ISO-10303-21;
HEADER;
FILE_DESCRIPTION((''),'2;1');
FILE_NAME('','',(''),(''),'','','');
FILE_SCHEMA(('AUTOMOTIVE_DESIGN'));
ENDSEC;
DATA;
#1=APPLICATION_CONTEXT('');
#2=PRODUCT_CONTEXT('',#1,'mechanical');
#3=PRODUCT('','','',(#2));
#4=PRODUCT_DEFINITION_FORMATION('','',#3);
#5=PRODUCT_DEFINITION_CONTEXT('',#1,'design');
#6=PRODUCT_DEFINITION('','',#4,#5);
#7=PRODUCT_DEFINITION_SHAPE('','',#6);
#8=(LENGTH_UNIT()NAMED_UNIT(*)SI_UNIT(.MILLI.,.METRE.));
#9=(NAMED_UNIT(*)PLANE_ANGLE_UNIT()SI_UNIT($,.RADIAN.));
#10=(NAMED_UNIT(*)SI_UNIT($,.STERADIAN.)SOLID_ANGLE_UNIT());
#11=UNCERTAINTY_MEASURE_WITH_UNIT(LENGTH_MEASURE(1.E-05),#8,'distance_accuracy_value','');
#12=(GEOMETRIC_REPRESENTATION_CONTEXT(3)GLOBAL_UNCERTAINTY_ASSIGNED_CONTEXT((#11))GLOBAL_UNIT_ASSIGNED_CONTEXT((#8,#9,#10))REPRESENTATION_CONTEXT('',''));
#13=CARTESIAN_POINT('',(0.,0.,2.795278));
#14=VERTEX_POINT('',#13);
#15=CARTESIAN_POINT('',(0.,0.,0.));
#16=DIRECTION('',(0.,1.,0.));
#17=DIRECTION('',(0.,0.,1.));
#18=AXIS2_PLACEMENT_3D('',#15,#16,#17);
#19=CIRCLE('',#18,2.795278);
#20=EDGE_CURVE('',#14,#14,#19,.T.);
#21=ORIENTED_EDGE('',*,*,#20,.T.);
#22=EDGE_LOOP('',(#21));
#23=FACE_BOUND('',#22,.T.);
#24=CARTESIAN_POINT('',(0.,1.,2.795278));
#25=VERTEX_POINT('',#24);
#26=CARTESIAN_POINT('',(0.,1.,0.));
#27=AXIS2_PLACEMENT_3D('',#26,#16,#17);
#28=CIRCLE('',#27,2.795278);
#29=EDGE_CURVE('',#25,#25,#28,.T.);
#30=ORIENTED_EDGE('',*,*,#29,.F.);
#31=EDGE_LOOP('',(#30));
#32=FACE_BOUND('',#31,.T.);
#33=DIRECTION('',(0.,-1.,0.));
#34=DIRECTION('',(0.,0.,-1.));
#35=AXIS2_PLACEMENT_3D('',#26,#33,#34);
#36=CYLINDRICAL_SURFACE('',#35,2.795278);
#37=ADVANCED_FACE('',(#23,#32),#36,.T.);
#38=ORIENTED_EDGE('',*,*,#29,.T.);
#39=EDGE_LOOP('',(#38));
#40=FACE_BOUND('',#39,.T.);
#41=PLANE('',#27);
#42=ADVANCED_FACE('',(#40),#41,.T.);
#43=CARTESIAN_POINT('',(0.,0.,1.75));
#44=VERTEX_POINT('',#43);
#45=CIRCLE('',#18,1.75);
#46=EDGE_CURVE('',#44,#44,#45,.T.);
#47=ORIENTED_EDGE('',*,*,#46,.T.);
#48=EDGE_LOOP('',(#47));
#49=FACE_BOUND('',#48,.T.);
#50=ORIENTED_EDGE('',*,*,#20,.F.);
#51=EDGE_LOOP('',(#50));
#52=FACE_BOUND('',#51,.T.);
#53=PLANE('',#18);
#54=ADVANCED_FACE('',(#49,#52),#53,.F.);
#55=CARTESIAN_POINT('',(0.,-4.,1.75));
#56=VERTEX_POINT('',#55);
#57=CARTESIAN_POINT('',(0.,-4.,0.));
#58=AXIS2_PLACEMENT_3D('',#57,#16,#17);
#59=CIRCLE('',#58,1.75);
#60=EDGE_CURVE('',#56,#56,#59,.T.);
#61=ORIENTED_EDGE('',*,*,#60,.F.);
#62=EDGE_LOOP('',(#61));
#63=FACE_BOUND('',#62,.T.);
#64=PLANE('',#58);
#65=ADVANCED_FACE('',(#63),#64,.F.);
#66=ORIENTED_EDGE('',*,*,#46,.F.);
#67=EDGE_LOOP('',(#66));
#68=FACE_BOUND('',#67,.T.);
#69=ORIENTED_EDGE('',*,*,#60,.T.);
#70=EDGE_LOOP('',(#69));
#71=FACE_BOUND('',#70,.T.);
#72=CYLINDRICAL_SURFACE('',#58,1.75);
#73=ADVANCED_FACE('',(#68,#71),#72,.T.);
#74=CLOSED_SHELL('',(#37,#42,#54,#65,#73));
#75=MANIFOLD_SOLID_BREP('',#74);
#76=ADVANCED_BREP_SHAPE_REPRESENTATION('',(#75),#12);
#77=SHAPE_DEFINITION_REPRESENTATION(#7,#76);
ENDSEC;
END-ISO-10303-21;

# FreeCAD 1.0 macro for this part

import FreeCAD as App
import Part
import Sketcher
Q = App.Units.Quantity

doc = App.newDocument("Part")
body = doc.addObject("PartDesign::Body", "Body")

# Sketch on XZ plane
sketch1 = doc.addObject("Sketcher::SketchObject", "Sketch")
body.addObject(sketch1)
sketch1.AttachmentSupport = (doc.XZ_Plane, [""])
sketch1.MapMode = "FlatFace"
sketch1.addGeometry(Part.Circle(App.Vector(0, 0, 0), App.Vector(0, 0, 1), 1.75), False)
sketch1.addConstraint([
    Sketcher.Constraint("Coincident", 0, 3, -1, 1),
    Sketcher.Constraint("Diameter", 0, Q("3.5 mm")),
])
pad1 = doc.addObject("PartDesign::Pad", "Pad")
body.addObject(pad1)
pad1.Profile = sketch1
pad1.Length = 4

# Sketch on XZ plane
sketch2 = doc.addObject("Sketcher::SketchObject", "Sketch001")
body.addObject(sketch2)
sketch2.AttachmentSupport = (doc.XZ_Plane, [""])
sketch2.MapMode = "FlatFace"
sketch2.addGeometry(Part.Circle(App.Vector(0, 0, 0), App.Vector(0, 0, 1), 2.795278), False)
sketch2.addConstraint([
    Sketcher.Constraint("Coincident", 0, 3, -1, 1),
    Sketcher.Constraint("Diameter", 0, Q("5.590555 mm")),
])
pad2 = doc.addObject("PartDesign::Pad", "Pad001")
body.addObject(pad2)
pad2.Profile = sketch2
pad2.Length = 1
pad2.Reversed = True

doc.recompute()
